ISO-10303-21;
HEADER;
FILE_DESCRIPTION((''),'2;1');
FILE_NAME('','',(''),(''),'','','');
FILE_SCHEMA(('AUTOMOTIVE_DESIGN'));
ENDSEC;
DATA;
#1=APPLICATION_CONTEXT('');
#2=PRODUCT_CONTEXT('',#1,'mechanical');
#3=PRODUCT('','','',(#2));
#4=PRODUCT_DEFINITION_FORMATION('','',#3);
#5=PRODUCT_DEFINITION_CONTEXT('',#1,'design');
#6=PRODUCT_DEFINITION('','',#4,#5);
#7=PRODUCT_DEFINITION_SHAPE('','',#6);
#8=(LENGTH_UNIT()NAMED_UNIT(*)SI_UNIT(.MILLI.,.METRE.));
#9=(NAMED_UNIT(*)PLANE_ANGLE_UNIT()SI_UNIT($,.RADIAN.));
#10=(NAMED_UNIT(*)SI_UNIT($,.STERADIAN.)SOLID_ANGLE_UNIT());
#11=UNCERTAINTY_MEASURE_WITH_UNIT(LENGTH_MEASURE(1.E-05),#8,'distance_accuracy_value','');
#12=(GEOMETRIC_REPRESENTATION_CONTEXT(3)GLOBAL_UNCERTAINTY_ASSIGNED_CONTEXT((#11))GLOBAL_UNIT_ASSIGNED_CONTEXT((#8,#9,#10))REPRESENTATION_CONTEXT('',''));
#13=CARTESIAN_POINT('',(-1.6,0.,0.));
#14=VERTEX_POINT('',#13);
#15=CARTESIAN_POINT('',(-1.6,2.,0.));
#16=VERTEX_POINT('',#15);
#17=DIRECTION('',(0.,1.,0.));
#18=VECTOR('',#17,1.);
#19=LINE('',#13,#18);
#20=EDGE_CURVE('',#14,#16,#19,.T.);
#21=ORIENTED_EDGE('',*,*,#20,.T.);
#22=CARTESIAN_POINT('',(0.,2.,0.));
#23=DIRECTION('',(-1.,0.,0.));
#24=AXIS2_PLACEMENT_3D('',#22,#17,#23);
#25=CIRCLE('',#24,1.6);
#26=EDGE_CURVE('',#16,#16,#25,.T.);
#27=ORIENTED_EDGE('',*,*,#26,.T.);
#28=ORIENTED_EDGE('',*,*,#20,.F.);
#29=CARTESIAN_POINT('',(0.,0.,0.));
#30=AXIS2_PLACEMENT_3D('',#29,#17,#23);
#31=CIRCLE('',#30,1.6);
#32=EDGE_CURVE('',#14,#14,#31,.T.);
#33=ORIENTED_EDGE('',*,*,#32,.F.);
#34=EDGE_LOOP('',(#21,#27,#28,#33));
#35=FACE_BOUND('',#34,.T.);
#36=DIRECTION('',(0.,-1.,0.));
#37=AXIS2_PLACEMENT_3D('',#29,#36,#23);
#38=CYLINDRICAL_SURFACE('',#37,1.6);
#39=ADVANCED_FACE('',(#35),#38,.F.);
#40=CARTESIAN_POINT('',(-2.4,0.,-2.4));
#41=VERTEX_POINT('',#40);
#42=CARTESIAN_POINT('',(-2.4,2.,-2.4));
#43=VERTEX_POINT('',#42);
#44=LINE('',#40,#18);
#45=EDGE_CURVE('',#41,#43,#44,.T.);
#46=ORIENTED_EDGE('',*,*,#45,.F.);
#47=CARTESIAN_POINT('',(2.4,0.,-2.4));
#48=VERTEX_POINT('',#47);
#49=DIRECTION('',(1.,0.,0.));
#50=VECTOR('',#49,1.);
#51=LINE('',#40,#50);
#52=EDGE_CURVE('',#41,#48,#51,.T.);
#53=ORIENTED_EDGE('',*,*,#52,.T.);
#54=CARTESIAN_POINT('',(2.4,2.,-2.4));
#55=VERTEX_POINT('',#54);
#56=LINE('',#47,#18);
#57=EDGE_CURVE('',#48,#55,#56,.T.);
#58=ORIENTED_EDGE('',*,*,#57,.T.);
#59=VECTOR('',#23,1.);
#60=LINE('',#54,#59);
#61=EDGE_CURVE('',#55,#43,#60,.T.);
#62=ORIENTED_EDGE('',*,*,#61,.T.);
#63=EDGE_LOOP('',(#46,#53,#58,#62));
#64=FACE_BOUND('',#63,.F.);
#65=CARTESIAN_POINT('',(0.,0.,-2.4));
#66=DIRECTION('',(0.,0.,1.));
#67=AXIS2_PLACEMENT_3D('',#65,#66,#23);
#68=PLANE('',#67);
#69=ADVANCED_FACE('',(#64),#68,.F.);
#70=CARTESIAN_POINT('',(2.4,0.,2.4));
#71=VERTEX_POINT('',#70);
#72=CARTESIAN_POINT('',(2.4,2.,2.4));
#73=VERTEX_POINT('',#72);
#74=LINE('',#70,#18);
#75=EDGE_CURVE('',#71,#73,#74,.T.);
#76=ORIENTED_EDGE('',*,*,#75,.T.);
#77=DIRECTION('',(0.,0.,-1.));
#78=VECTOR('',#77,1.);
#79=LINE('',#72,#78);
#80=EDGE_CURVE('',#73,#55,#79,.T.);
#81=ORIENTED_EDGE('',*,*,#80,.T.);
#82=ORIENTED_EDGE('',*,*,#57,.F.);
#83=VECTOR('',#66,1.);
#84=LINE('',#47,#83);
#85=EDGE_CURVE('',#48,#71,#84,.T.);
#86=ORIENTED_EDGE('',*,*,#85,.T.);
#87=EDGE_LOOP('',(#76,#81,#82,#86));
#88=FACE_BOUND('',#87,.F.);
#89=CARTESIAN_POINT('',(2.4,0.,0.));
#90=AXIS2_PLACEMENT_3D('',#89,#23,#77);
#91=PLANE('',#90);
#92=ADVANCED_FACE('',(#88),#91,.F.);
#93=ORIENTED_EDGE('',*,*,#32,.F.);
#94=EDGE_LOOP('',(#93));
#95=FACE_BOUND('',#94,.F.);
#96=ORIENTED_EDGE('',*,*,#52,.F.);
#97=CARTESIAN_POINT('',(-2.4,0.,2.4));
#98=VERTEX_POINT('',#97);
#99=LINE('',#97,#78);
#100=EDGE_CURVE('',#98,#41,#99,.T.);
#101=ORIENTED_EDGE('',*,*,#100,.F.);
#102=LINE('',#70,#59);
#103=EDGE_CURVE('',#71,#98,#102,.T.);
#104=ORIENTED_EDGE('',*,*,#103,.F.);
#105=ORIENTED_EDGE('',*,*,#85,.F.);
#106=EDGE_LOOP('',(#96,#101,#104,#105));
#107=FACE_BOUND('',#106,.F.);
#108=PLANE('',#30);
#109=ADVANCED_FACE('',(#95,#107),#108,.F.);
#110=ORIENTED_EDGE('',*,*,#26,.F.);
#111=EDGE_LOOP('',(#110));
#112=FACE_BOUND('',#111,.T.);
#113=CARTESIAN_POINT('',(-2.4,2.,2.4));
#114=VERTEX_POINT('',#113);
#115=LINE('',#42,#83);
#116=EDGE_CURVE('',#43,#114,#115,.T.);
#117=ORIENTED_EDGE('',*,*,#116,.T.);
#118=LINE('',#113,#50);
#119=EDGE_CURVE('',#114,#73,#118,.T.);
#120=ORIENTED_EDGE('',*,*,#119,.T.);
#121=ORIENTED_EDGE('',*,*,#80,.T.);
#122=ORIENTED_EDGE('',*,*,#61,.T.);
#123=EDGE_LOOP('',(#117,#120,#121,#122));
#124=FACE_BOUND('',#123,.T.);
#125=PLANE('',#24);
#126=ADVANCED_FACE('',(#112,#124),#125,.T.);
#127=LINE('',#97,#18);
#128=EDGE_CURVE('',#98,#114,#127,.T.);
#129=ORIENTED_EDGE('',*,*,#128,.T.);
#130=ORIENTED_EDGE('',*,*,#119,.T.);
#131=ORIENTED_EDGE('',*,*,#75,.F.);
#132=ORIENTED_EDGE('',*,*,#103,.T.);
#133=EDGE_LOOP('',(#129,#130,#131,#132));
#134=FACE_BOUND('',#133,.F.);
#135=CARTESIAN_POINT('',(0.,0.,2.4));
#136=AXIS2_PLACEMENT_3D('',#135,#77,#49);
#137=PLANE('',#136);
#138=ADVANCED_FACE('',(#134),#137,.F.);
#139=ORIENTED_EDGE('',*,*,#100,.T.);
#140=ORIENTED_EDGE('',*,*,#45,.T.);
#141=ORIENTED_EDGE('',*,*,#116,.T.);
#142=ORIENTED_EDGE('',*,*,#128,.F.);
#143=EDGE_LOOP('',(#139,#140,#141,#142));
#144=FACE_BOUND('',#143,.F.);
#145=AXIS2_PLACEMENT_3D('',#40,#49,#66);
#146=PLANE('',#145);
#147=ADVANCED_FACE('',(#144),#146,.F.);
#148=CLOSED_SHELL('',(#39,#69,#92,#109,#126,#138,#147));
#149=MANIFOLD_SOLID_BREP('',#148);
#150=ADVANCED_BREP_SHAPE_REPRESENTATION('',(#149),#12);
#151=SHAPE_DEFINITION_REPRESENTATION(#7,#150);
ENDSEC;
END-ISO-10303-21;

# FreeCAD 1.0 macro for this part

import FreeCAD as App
import Part
import Sketcher


def add_polygon(sketch, points):
    """Adds a closed chain of lines whose ends are joined by coincident constraints."""
    first, n = sketch.GeometryCount, len(points)
    for a, b in zip(points, points[1:] + points[:1]):
        sketch.addGeometry(Part.LineSegment(App.Vector(*a, 0), App.Vector(*b, 0)), False)
    for i in range(n):
        sketch.addConstraint(Sketcher.Constraint("Coincident", first + i, 2, first + (i + 1) % n, 1))

doc = App.newDocument("Part")
body = doc.addObject("PartDesign::Body", "Body")

# Sketch on XZ plane
sketch1 = doc.addObject("Sketcher::SketchObject", "Sketch")
body.addObject(sketch1)
sketch1.AttachmentSupport = (doc.XZ_Plane, [""])
sketch1.MapMode = "FlatFace"
add_polygon(sketch1, [(-2.4, -2.4), (-2.4, 2.4), (2.4, 2.4), (2.4, -2.4)])  # lines 0-3
sketch1.addGeometry(Part.Circle(App.Vector(0, 0, 0), App.Vector(0, 0, 1), 1.6), False)  # 4
sketch1.addConstraint(Sketcher.Constraint("Vertical", 0))
sketch1.addConstraint(Sketcher.Constraint("Horizontal", 1))
sketch1.addConstraint(Sketcher.Constraint("Vertical", 2))
sketch1.addConstraint(Sketcher.Constraint("Horizontal", 3))
sketch1.addConstraint(Sketcher.Constraint("Coincident", 4, 3, -1, 1))
sketch1.addConstraint(Sketcher.Constraint("Symmetric", 0, 2, 2, 2, -1, 1))
sketch1.addConstraint(Sketcher.Constraint("Equal", 3, 0))
sketch1.addConstraint(Sketcher.Constraint("Diameter", 4, 3.2))
sketch1.addConstraint(Sketcher.Constraint("DistanceX", 1, 1, 1, 2, 4.8))
pad1 = doc.addObject("PartDesign::Pad", "Pad")
body.addObject(pad1)
pad1.Profile = sketch1
pad1.Length = 2
pad1.Reversed = True

doc.recompute()
